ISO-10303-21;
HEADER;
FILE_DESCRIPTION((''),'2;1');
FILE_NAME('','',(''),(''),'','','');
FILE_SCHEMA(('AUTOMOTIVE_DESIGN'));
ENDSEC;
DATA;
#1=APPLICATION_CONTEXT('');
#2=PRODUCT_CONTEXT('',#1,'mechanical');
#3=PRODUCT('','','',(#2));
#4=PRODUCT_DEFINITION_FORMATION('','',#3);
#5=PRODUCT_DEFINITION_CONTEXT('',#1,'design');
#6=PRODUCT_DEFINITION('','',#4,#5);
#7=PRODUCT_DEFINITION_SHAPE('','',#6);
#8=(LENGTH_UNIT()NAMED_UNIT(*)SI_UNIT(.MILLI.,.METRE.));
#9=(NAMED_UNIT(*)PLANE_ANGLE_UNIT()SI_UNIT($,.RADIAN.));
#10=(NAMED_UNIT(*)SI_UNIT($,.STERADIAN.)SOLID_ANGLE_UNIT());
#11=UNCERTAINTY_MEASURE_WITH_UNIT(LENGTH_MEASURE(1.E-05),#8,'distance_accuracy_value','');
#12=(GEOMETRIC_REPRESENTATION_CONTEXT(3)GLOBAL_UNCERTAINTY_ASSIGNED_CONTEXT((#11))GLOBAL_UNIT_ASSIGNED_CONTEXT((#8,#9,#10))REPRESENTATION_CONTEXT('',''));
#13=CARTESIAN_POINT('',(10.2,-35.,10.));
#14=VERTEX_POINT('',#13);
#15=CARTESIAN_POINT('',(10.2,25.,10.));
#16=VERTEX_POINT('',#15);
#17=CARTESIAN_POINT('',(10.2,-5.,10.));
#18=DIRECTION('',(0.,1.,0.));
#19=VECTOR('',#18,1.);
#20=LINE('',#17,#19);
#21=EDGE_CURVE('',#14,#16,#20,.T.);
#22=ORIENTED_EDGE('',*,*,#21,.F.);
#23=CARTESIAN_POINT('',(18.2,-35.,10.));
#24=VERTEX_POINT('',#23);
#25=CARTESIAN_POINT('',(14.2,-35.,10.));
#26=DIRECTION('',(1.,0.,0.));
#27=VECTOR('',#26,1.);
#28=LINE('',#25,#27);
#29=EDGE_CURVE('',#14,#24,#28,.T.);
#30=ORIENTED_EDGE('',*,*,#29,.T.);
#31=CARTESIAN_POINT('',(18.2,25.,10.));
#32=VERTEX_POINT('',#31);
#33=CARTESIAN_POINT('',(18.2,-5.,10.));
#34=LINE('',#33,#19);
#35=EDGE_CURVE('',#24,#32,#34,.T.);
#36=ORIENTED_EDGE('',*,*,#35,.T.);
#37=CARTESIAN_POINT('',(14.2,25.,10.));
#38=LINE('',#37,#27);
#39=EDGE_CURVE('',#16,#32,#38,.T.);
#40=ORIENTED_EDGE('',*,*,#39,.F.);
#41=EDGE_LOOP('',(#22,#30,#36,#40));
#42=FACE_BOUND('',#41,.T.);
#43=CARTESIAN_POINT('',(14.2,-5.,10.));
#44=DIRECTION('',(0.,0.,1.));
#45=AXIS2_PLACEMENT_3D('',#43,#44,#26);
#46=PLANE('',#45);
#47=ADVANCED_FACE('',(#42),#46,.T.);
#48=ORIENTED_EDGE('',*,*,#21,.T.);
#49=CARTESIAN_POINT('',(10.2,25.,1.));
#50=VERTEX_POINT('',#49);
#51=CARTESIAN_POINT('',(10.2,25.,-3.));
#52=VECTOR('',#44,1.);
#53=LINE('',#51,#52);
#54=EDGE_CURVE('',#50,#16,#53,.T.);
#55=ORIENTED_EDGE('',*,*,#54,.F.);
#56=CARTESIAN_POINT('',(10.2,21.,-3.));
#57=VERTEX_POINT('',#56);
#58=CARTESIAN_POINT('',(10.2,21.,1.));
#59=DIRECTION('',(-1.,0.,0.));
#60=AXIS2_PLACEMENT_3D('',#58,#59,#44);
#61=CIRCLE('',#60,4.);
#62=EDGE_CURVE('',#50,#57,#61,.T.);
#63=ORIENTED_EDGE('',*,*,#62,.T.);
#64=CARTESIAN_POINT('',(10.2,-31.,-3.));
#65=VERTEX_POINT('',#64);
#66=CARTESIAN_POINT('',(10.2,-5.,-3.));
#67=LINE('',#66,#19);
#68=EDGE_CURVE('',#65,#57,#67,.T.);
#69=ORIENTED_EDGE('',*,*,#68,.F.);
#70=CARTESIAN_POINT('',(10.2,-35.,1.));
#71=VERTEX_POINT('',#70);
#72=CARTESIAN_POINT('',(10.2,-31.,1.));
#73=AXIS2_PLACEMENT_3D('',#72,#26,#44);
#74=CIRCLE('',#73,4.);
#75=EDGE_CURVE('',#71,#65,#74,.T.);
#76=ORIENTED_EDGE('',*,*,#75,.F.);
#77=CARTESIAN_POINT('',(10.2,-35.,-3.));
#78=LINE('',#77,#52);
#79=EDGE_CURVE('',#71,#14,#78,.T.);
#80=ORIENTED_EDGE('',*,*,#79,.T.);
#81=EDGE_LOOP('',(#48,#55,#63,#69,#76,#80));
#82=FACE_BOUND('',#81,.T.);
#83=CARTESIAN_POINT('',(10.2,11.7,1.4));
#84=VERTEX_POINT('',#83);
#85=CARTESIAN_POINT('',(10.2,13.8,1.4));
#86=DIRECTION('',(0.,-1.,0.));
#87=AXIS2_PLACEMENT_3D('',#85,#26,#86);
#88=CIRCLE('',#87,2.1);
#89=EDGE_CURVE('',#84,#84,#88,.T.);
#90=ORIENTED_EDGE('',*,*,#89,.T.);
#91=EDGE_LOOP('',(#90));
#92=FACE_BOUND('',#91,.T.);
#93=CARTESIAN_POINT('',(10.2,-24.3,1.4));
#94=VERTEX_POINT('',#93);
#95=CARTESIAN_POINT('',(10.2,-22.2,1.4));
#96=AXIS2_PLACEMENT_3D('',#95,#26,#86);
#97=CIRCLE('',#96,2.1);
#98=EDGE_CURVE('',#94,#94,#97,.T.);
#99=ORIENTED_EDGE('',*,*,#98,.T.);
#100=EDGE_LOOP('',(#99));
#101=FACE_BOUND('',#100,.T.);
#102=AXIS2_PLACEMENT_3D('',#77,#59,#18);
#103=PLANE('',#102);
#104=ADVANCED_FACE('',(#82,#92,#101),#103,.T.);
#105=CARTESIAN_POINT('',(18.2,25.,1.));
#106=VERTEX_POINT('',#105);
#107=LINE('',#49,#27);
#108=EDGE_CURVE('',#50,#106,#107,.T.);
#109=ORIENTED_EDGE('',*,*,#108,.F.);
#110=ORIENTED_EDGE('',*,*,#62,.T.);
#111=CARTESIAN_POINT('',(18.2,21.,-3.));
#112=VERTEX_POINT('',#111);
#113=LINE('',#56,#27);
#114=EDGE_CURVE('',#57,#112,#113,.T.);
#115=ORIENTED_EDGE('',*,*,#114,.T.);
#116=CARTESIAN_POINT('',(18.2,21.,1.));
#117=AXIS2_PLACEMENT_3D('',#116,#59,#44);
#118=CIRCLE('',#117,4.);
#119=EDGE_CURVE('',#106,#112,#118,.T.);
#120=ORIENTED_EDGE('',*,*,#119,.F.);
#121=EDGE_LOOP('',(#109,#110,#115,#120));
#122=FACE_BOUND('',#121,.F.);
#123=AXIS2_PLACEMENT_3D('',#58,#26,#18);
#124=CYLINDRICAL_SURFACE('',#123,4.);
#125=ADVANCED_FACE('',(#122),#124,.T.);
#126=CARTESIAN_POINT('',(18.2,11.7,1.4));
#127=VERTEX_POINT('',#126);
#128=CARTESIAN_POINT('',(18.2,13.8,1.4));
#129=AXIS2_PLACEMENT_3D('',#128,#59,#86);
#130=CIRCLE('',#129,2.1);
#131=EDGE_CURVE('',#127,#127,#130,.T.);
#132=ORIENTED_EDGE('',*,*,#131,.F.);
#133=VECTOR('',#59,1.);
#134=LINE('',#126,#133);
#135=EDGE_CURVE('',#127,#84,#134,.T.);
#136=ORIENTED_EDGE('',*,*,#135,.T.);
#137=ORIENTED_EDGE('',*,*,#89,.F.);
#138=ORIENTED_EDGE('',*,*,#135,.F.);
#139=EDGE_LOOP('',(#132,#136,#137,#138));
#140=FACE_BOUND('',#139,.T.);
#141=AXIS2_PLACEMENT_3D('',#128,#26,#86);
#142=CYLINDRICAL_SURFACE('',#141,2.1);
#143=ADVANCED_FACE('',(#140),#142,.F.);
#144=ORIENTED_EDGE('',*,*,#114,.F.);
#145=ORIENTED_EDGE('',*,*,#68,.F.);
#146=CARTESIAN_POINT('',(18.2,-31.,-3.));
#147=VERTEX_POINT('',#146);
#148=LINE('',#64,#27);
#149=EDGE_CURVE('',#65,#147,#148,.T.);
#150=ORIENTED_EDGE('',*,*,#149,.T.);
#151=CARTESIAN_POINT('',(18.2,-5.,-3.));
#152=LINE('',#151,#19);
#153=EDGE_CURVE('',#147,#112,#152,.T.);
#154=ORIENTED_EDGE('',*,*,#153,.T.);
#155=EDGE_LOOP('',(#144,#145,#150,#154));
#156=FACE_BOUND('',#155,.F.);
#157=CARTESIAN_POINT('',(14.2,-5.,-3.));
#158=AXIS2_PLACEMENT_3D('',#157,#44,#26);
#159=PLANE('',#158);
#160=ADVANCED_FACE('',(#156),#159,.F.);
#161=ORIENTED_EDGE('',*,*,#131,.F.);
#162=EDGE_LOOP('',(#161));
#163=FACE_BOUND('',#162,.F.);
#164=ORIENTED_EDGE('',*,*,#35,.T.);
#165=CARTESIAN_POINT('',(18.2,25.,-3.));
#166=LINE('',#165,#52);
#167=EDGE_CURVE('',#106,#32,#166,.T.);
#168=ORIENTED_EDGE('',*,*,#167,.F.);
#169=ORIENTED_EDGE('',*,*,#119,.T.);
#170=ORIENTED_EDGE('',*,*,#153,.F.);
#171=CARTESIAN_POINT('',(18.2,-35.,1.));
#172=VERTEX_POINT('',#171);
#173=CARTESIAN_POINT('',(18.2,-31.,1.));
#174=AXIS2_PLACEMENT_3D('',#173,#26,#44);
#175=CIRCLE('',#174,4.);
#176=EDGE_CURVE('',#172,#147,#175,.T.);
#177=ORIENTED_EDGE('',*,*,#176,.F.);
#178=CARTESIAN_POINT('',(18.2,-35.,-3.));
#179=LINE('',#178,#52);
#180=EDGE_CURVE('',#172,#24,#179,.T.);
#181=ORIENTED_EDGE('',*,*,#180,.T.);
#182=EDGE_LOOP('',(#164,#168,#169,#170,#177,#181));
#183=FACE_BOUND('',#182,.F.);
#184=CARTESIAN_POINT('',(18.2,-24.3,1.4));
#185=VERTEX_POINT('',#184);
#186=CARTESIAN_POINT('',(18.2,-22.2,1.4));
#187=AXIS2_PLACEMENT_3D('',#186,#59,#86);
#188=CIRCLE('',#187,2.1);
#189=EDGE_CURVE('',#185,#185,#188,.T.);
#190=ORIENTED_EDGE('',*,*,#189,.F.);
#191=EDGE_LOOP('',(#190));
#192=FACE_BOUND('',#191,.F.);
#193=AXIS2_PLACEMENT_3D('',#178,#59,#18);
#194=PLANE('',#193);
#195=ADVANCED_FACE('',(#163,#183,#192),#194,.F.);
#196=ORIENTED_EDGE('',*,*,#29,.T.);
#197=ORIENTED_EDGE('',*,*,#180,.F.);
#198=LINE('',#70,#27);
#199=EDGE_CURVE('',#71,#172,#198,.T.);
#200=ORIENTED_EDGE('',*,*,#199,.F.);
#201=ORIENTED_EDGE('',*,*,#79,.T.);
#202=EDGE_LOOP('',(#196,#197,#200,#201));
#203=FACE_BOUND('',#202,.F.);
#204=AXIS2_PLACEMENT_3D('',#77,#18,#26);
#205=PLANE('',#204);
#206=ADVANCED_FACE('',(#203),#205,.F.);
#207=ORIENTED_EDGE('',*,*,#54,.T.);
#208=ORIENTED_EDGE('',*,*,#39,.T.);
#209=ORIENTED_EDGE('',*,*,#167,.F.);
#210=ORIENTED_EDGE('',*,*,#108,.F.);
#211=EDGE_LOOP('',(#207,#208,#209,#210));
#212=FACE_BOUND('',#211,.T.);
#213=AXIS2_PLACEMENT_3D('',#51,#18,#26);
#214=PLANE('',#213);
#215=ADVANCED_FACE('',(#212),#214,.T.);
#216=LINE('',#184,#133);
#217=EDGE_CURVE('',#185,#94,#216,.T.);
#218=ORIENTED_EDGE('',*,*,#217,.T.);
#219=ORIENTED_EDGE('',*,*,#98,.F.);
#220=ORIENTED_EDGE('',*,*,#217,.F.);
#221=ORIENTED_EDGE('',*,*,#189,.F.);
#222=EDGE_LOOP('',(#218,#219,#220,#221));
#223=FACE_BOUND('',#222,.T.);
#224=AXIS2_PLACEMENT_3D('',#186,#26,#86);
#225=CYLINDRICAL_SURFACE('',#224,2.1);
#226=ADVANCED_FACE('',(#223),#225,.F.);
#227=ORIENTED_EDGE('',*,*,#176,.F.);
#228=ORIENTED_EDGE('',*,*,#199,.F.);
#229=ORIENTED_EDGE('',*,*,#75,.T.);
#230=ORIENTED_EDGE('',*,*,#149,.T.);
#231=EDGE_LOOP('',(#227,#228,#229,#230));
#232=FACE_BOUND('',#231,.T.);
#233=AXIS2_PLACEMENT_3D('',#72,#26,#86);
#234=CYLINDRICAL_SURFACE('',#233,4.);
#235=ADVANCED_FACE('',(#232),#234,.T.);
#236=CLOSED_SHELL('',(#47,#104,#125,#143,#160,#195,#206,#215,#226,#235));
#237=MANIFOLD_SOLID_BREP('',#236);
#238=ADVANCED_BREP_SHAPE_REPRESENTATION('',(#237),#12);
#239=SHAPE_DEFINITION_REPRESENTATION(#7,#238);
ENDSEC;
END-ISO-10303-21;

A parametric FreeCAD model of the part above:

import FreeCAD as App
import Part
import Sketcher
from FreeCAD import Vector


def edges_at(feature, points):
    """Names of the edges that pass closest to the given points."""
    edges = feature.Shape.Edges
    near = lambda p: min(range(len(edges)), key=lambda i: edges[i].distToShape(Part.Vertex(*p))[0])
    return sorted({f"Edge{near(p) + 1}" for p in points})


def add_polygon(sketch, points):
    """Adds a closed chain of lines whose ends are joined by coincident constraints."""
    first, n = sketch.GeometryCount, len(points)
    for a, b in zip(points, points[1:] + points[:1]):
        sketch.addGeometry(Part.LineSegment(App.Vector(*a, 0), App.Vector(*b, 0)), False)
    for i in range(n):
        sketch.addConstraint(Sketcher.Constraint("Coincident", first + i, 2, first + (i + 1) % n, 1))

doc = App.newDocument("Part")
body = doc.addObject("PartDesign::Body", "Body")
body.AllowCompound = True

# Sketch on YZ plane
sketch1 = body.newObject("Sketcher::SketchObject", "Sketch")
sketch1.AttachmentSupport = (doc.getObject("YZ_Plane"), [""])
sketch1.MapMode = "FlatFace"
sketch1.AttachmentOffset = App.Placement(Vector(0, 0, 18.2), App.Rotation())
sketch1.addGeometry(Part.Circle(Vector(13.8, 1.4, 0), Vector(0, 0, 1), 2.1), False)
sketch1.addGeometry(Part.Circle(Vector(-22.2, 1.4, 0), Vector(0, 0, 1), 2.1), False)
sketch1.addConstraint(Sketcher.Constraint("Equal", 0, 1))
sketch1.addConstraint(Sketcher.Constraint("Horizontal", 0, 3, 1, 3))
sketch1.addConstraint(Sketcher.Constraint("Diameter", 0, 4.2))
sketch1.addConstraint(Sketcher.Constraint("DistanceX", 1, 3, 0, 3, 36.0))
sketch1.addConstraint(Sketcher.Constraint("DistanceX", -1, 1, 0, 3, 13.8))
sketch1.addConstraint(Sketcher.Constraint("DistanceY", -1, 1, 0, 3, 1.4))
pad1 = body.newObject("PartDesign::Pad", "Pad")
pad1.Profile = sketch1
pad1.Length = 10
pad1.Reversed = True
body2 = doc.addObject("PartDesign::Body", "Body001")

# Sketch on XY plane
sketch2 = body2.newObject("Sketcher::SketchObject", "Sketch001")
sketch2.AttachmentSupport = (doc.getObject("XY_Plane001"), [""])
sketch2.MapMode = "FlatFace"
sketch2.AttachmentOffset = App.Placement(Vector(0, 0, -3), App.Rotation())
add_polygon(sketch2, [(10, 25), (10, -35), (18, -35), (18, 25)])  # lines 0-3
sketch2.addConstraint(Sketcher.Constraint("Vertical", 0))
sketch2.addConstraint(Sketcher.Constraint("Horizontal", 1))
sketch2.addConstraint(Sketcher.Constraint("Vertical", 2))
sketch2.addConstraint(Sketcher.Constraint("Horizontal", 3))
sketch2.addConstraint(Sketcher.Constraint("DistanceX", 1, 1, 1, 2, 8.0))
sketch2.addConstraint(Sketcher.Constraint("DistanceY", 0, 2, 0, 1, 60.0))
sketch2.addConstraint(Sketcher.Constraint("DistanceY", 0, 2, -1, 1, 35.0))
sketch2.addConstraint(Sketcher.Constraint("DistanceX", -1, 1, 0, 2, 10.2))
pad2 = body2.newObject("PartDesign::Pad", "Pad001")
pad2.Profile = sketch2
pad2.Length = 13
doc.recompute()

fillet = body2.newObject("PartDesign::Fillet", "Fillet")
fillet.Base = (pad2, edges_at(pad2, [(14.2, -35, -3), (14.2, 25, -3)]))
fillet.Radius = 4
doc.recompute()

boolean = body2.newObject("PartDesign::Boolean", "Boolean")
boolean.Type = "Cut"
boolean.addObjects([body])

doc.recompute()
